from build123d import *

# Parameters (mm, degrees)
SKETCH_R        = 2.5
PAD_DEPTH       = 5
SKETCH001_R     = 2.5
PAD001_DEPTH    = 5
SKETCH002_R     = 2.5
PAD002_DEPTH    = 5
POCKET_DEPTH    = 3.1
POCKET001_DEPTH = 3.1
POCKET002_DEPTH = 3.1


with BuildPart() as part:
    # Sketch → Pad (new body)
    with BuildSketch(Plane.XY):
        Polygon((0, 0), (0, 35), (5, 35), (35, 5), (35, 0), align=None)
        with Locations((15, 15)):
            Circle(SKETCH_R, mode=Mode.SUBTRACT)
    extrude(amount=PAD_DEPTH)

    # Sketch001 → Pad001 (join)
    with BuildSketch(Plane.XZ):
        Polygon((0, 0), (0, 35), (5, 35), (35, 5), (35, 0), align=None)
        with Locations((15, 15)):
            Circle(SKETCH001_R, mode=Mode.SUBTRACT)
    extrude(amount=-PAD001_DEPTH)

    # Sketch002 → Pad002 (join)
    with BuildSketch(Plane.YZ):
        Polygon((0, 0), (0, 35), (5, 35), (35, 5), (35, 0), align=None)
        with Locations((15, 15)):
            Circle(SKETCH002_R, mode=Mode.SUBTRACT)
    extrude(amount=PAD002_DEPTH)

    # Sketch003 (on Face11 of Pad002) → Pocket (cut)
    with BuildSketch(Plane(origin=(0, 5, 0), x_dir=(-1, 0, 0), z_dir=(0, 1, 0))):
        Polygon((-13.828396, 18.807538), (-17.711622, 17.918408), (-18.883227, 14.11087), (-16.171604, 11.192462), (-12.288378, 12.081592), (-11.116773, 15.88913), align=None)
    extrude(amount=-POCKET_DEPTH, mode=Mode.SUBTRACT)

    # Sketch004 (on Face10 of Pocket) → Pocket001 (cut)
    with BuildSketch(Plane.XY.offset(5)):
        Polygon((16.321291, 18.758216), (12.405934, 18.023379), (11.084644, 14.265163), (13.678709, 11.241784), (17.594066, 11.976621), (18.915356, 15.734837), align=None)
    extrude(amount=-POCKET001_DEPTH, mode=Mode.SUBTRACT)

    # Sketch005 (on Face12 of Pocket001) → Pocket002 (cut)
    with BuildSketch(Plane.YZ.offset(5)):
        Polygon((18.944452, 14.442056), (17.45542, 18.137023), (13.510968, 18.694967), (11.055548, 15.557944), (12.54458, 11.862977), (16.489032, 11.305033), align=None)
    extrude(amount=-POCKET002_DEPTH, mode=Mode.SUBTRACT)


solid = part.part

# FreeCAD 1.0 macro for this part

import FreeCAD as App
import Part
import Sketcher

V = App.Vector

doc = App.newDocument("Part")
body = doc.addObject("PartDesign::Body", "Body")

sketch1 = doc.addObject("Sketcher::SketchObject", "Sketch")
body.addObject(sketch1)
sketch1.AttachmentSupport = (doc.XY_Plane, [""])
sketch1.MapMode = "FlatFace"
sketch1.addGeometry(Part.LineSegment(V(0, 35, 0), V(0, 0, 0)), False)
sketch1.addGeometry(Part.LineSegment(V(0, 0, 0), V(35, 0, 0)), False)
sketch1.addGeometry(Part.LineSegment(V(35, 0, 0), V(35, 5, 0)), False)
sketch1.addGeometry(Part.LineSegment(V(35, 5, 0), V(5, 35, 0)), False)
sketch1.addGeometry(Part.LineSegment(V(5, 35, 0), V(0, 35, 0)), False)
sketch1.addGeometry(Part.Circle(V(15, 15, 0), V(0, 0, 1), 2.5), False)
sketch1.addConstraint(Sketcher.Constraint("Coincident", 0, 2, 1, 1))
sketch1.addConstraint(Sketcher.Constraint("Coincident", 1, 2, 2, 1))
sketch1.addConstraint(Sketcher.Constraint("Coincident", 2, 2, 3, 1))
sketch1.addConstraint(Sketcher.Constraint("Coincident", 3, 2, 4, 1))
sketch1.addConstraint(Sketcher.Constraint("Coincident", 4, 2, 0, 1))
sketch1.addConstraint(Sketcher.Constraint("Vertical", 0))
sketch1.addConstraint(Sketcher.Constraint("Horizontal", 1))
sketch1.addConstraint(Sketcher.Constraint("Vertical", 2))
sketch1.addConstraint(Sketcher.Constraint("Horizontal", 4))
sketch1.addConstraint(Sketcher.Constraint("Coincident", 0, 2, -1, 1))
sketch1.addConstraint(Sketcher.Constraint("Equal", 1, 0))
sketch1.addConstraint(Sketcher.Constraint("Equal", 4, 2))
sketch1.addConstraint(Sketcher.Constraint("Diameter", 5, 5.0))
sketch1.addConstraint(Sketcher.Constraint("DistanceX", 1, 1, 1, 2, 35.0))
sketch1.addConstraint(Sketcher.Constraint("DistanceX", 4, 2, 4, 1, 5.0))
sketch1.addConstraint(Sketcher.Constraint("DistanceX", -1, 1, 5, 3, 15.0))
sketch1.addConstraint(Sketcher.Constraint("DistanceY", -1, 1, 5, 3, 15.0))
pad1 = doc.addObject("PartDesign::Pad", "Pad")
body.addObject(pad1)
pad1.Profile = sketch1
pad1.Length = 5

sketch2 = doc.addObject("Sketcher::SketchObject", "Sketch001")
body.addObject(sketch2)
sketch2.AttachmentSupport = (doc.XZ_Plane, [""])
sketch2.MapMode = "FlatFace"
sketch2.addGeometry(Part.LineSegment(V(0, 35, 0), V(0, 0, 0)), False)
sketch2.addGeometry(Part.LineSegment(V(0, 0, 0), V(35, 0, 0)), False)
sketch2.addGeometry(Part.LineSegment(V(35, 0, 0), V(35, 5, 0)), False)
sketch2.addGeometry(Part.LineSegment(V(35, 5, 0), V(5, 35, 0)), False)
sketch2.addGeometry(Part.LineSegment(V(5, 35, 0), V(0, 35, 0)), False)
sketch2.addGeometry(Part.Circle(V(15, 15, 0), V(0, 0, 1), 2.5), False)
sketch2.addConstraint(Sketcher.Constraint("Coincident", 0, 2, 1, 1))
sketch2.addConstraint(Sketcher.Constraint("Coincident", 1, 2, 2, 1))
sketch2.addConstraint(Sketcher.Constraint("Coincident", 2, 2, 3, 1))
sketch2.addConstraint(Sketcher.Constraint("Coincident", 3, 2, 4, 1))
sketch2.addConstraint(Sketcher.Constraint("Coincident", 4, 2, 0, 1))
sketch2.addConstraint(Sketcher.Constraint("Vertical", 0))
sketch2.addConstraint(Sketcher.Constraint("Horizontal", 1))
sketch2.addConstraint(Sketcher.Constraint("Vertical", 2))
sketch2.addConstraint(Sketcher.Constraint("Horizontal", 4))
sketch2.addConstraint(Sketcher.Constraint("Coincident", 0, 2, -1, 1))
sketch2.addConstraint(Sketcher.Constraint("Equal", 1, 0))
sketch2.addConstraint(Sketcher.Constraint("Equal", 4, 2))
sketch2.addConstraint(Sketcher.Constraint("Diameter", 5, 5.0))
sketch2.addConstraint(Sketcher.Constraint("DistanceX", 1, 1, 1, 2, 35.0))
sketch2.addConstraint(Sketcher.Constraint("DistanceX", 4, 2, 4, 1, 5.0))
sketch2.addConstraint(Sketcher.Constraint("DistanceX", -1, 1, 5, 3, 15.0))
sketch2.addConstraint(Sketcher.Constraint("DistanceY", -1, 1, 5, 3, 15.0))
pad2 = doc.addObject("PartDesign::Pad", "Pad001")
body.addObject(pad2)
pad2.Profile = sketch2
pad2.Length = 5
pad2.Reversed = True

sketch3 = doc.addObject("Sketcher::SketchObject", "Sketch002")
body.addObject(sketch3)
sketch3.AttachmentSupport = (doc.YZ_Plane, [""])
sketch3.MapMode = "FlatFace"
sketch3.addGeometry(Part.LineSegment(V(0, 35, 0), V(0, 0, 0)), False)
sketch3.addGeometry(Part.LineSegment(V(0, 0, 0), V(35, 0, 0)), False)
sketch3.addGeometry(Part.LineSegment(V(35, 0, 0), V(35, 5, 0)), False)
sketch3.addGeometry(Part.LineSegment(V(35, 5, 0), V(5, 35, 0)), False)
sketch3.addGeometry(Part.LineSegment(V(5, 35, 0), V(0, 35, 0)), False)
sketch3.addGeometry(Part.Circle(V(15, 15, 0), V(0, 0, 1), 2.5), False)
sketch3.addConstraint(Sketcher.Constraint("Coincident", 0, 2, 1, 1))
sketch3.addConstraint(Sketcher.Constraint("Coincident", 1, 2, 2, 1))
sketch3.addConstraint(Sketcher.Constraint("Coincident", 2, 2, 3, 1))
sketch3.addConstraint(Sketcher.Constraint("Coincident", 3, 2, 4, 1))
sketch3.addConstraint(Sketcher.Constraint("Coincident", 4, 2, 0, 1))
sketch3.addConstraint(Sketcher.Constraint("Vertical", 0))
sketch3.addConstraint(Sketcher.Constraint("Horizontal", 1))
sketch3.addConstraint(Sketcher.Constraint("Vertical", 2))
sketch3.addConstraint(Sketcher.Constraint("Horizontal", 4))
sketch3.addConstraint(Sketcher.Constraint("Coincident", 0, 2, -1, 1))
sketch3.addConstraint(Sketcher.Constraint("Equal", 1, 0))
sketch3.addConstraint(Sketcher.Constraint("Equal", 4, 2))
sketch3.addConstraint(Sketcher.Constraint("Diameter", 5, 5.0))
sketch3.addConstraint(Sketcher.Constraint("DistanceX", 1, 1, 1, 2, 35.0))
sketch3.addConstraint(Sketcher.Constraint("DistanceX", 4, 2, 4, 1, 5.0))
sketch3.addConstraint(Sketcher.Constraint("DistanceX", -1, 1, 5, 3, 15.0))
sketch3.addConstraint(Sketcher.Constraint("DistanceY", -1, 1, 5, 3, 15.0))
pad3 = doc.addObject("PartDesign::Pad", "Pad002")
body.addObject(pad3)
pad3.Profile = sketch3
pad3.Length = 5

sketch4 = doc.addObject("Sketcher::SketchObject", "Sketch003")
body.addObject(sketch4)
sketch4.AttachmentSupport = (doc.XZ_Plane, [""])
sketch4.MapMode = "FlatFace"
sketch4.AttachmentOffset = App.Placement(V(0, 0, -5), App.Rotation())
sketch4.addGeometry(Part.LineSegment(V(13.828396, 18.807538, 0), V(17.711622, 17.918408, 0)), False)
sketch4.addGeometry(Part.LineSegment(V(17.711622, 17.918408, 0), V(18.883227, 14.11087, 0)), False)
sketch4.addGeometry(Part.LineSegment(V(18.883227, 14.11087, 0), V(16.171604, 11.192462, 0)), False)
sketch4.addGeometry(Part.LineSegment(V(16.171604, 11.192462, 0), V(12.288378, 12.081592, 0)), False)
sketch4.addGeometry(Part.LineSegment(V(12.288378, 12.081592, 0), V(11.116773, 15.88913, 0)), False)
sketch4.addGeometry(Part.LineSegment(V(11.116773, 15.88913, 0), V(13.828396, 18.807538, 0)), False)
sketch4.addConstraint(Sketcher.Constraint("Coincident", 0, 2, 1, 1))
sketch4.addConstraint(Sketcher.Constraint("Coincident", 1, 2, 2, 1))
sketch4.addConstraint(Sketcher.Constraint("Coincident", 2, 2, 3, 1))
sketch4.addConstraint(Sketcher.Constraint("Coincident", 3, 2, 4, 1))
sketch4.addConstraint(Sketcher.Constraint("Coincident", 4, 2, 5, 1))
sketch4.addConstraint(Sketcher.Constraint("Coincident", 5, 2, 0, 1))
sketch4.addConstraint(Sketcher.Constraint("Parallel", 0, 3))
sketch4.addConstraint(Sketcher.Constraint("Parallel", 1, 4))
sketch4.addConstraint(Sketcher.Constraint("Parallel", 2, 5))
sketch4.addConstraint(Sketcher.Constraint("Equal", 0, 1))
sketch4.addConstraint(Sketcher.Constraint("Equal", 1, 2))
sketch4.addConstraint(Sketcher.Constraint("Equal", 2, 3))
sketch4.addConstraint(Sketcher.Constraint("DistanceX", -1, 1, 0, 2, 17.711622))
sketch4.addConstraint(Sketcher.Constraint("DistanceY", -1, 1, 1, 2, 14.11087))
sketch4.addConstraint(Sketcher.Constraint("DistanceY", -1, 1, 4, 2, 15.88913))
sketch4.addConstraint(Sketcher.Constraint("DistanceY", -1, 1, 5, 2, 18.807538))
sketch4.addConstraint(Sketcher.Constraint("DistanceY", 2, 2, 3, 2, 0.88913))
sketch4.addConstraint(Sketcher.Constraint("DistanceX", 3, 2, 1, 2, 6.594849))
pocket1 = doc.addObject("PartDesign::Pocket", "Pocket")
body.addObject(pocket1)
pocket1.Profile = sketch4
pocket1.Length = 3.1
pocket1.Reversed = True

sketch5 = doc.addObject("Sketcher::SketchObject", "Sketch004")
body.addObject(sketch5)
sketch5.AttachmentSupport = (doc.XY_Plane, [""])
sketch5.MapMode = "FlatFace"
sketch5.AttachmentOffset = App.Placement(V(0, 0, 5), App.Rotation())
sketch5.addGeometry(Part.LineSegment(V(16.321291, 18.758216, 0), V(12.405934, 18.023379, 0)), False)
sketch5.addGeometry(Part.LineSegment(V(12.405934, 18.023379, 0), V(11.084644, 14.265163, 0)), False)
sketch5.addGeometry(Part.LineSegment(V(11.084644, 14.265163, 0), V(13.678709, 11.241784, 0)), False)
sketch5.addGeometry(Part.LineSegment(V(13.678709, 11.241784, 0), V(17.594066, 11.976621, 0)), False)
sketch5.addGeometry(Part.LineSegment(V(17.594066, 11.976621, 0), V(18.915356, 15.734837, 0)), False)
sketch5.addGeometry(Part.LineSegment(V(18.915356, 15.734837, 0), V(16.321291, 18.758216, 0)), False)
sketch5.addConstraint(Sketcher.Constraint("Coincident", 0, 2, 1, 1))
sketch5.addConstraint(Sketcher.Constraint("Coincident", 1, 2, 2, 1))
sketch5.addConstraint(Sketcher.Constraint("Coincident", 2, 2, 3, 1))
sketch5.addConstraint(Sketcher.Constraint("Coincident", 3, 2, 4, 1))
sketch5.addConstraint(Sketcher.Constraint("Coincident", 4, 2, 5, 1))
sketch5.addConstraint(Sketcher.Constraint("Coincident", 5, 2, 0, 1))
sketch5.addConstraint(Sketcher.Constraint("Parallel", 0, 3))
sketch5.addConstraint(Sketcher.Constraint("Parallel", 1, 4))
sketch5.addConstraint(Sketcher.Constraint("Parallel", 2, 5))
sketch5.addConstraint(Sketcher.Constraint("Equal", 0, 1))
sketch5.addConstraint(Sketcher.Constraint("Equal", 1, 2))
sketch5.addConstraint(Sketcher.Constraint("Equal", 2, 3))
sketch5.addConstraint(Sketcher.Constraint("DistanceY", -1, 1, 0, 2, 18.023379))
sketch5.addConstraint(Sketcher.Constraint("DistanceX", -1, 1, 2, 2, 13.678709))
sketch5.addConstraint(Sketcher.Constraint("DistanceY", -1, 1, 3, 2, 11.976621))
sketch5.addConstraint(Sketcher.Constraint("DistanceX", -1, 1, 5, 2, 16.321291))
sketch5.addConstraint(Sketcher.Constraint("DistanceX", 1, 2, 0, 2, 1.32129))
sketch5.addConstraint(Sketcher.Constraint("DistanceY", 2, 2, 1, 2, 3.023379))
pocket2 = doc.addObject("PartDesign::Pocket", "Pocket001")
body.addObject(pocket2)
pocket2.Profile = sketch5
pocket2.Length = 3.1

sketch6 = doc.addObject("Sketcher::SketchObject", "Sketch005")
body.addObject(sketch6)
sketch6.AttachmentSupport = (doc.YZ_Plane, [""])
sketch6.MapMode = "FlatFace"
sketch6.AttachmentOffset = App.Placement(V(0, 0, 5), App.Rotation())
sketch6.addGeometry(Part.LineSegment(V(18.944452, 14.442056, 0), V(17.45542, 18.137023, 0)), False)
sketch6.addGeometry(Part.LineSegment(V(17.45542, 18.137023, 0), V(13.510968, 18.694967, 0)), False)
sketch6.addGeometry(Part.LineSegment(V(13.510968, 18.694967, 0), V(11.055548, 15.557944, 0)), False)
sketch6.addGeometry(Part.LineSegment(V(11.055548, 15.557944, 0), V(12.54458, 11.862977, 0)), False)
sketch6.addGeometry(Part.LineSegment(V(12.54458, 11.862977, 0), V(16.489032, 11.305033, 0)), False)
sketch6.addGeometry(Part.LineSegment(V(16.489032, 11.305033, 0), V(18.944452, 14.442056, 0)), False)
sketch6.addConstraint(Sketcher.Constraint("Coincident", 0, 2, 1, 1))
sketch6.addConstraint(Sketcher.Constraint("Coincident", 1, 2, 2, 1))
sketch6.addConstraint(Sketcher.Constraint("Coincident", 2, 2, 3, 1))
sketch6.addConstraint(Sketcher.Constraint("Coincident", 3, 2, 4, 1))
sketch6.addConstraint(Sketcher.Constraint("Coincident", 4, 2, 5, 1))
sketch6.addConstraint(Sketcher.Constraint("Coincident", 5, 2, 0, 1))
sketch6.addConstraint(Sketcher.Constraint("Parallel", 0, 3))
sketch6.addConstraint(Sketcher.Constraint("Parallel", 1, 4))
sketch6.addConstraint(Sketcher.Constraint("Parallel", 2, 5))
sketch6.addConstraint(Sketcher.Constraint("Equal", 0, 1))
sketch6.addConstraint(Sketcher.Constraint("Equal", 1, 2))
sketch6.addConstraint(Sketcher.Constraint("Equal", 2, 3))
sketch6.addConstraint(Sketcher.Constraint("DistanceX", -1, 1, 0, 2, 17.45542))
sketch6.addConstraint(Sketcher.Constraint("DistanceX", -1, 1, 3, 2, 12.54458))
sketch6.addConstraint(Sketcher.Constraint("DistanceX", -1, 1, 5, 2, 18.944452))
sketch6.addConstraint(Sketcher.Constraint("DistanceX", 2, 2, 1, 2, 2.45542))
sketch6.addConstraint(Sketcher.Constraint("DistanceY", 2, 2, 0, 2, 2.579079))
sketch6.addConstraint(Sketcher.Constraint("DistanceY", -1, 1, 0, 2, 18.137023))
pocket3 = doc.addObject("PartDesign::Pocket", "Pocket002")
body.addObject(pocket3)
pocket3.Profile = sketch6
pocket3.Length = 3.1

doc.recompute()
